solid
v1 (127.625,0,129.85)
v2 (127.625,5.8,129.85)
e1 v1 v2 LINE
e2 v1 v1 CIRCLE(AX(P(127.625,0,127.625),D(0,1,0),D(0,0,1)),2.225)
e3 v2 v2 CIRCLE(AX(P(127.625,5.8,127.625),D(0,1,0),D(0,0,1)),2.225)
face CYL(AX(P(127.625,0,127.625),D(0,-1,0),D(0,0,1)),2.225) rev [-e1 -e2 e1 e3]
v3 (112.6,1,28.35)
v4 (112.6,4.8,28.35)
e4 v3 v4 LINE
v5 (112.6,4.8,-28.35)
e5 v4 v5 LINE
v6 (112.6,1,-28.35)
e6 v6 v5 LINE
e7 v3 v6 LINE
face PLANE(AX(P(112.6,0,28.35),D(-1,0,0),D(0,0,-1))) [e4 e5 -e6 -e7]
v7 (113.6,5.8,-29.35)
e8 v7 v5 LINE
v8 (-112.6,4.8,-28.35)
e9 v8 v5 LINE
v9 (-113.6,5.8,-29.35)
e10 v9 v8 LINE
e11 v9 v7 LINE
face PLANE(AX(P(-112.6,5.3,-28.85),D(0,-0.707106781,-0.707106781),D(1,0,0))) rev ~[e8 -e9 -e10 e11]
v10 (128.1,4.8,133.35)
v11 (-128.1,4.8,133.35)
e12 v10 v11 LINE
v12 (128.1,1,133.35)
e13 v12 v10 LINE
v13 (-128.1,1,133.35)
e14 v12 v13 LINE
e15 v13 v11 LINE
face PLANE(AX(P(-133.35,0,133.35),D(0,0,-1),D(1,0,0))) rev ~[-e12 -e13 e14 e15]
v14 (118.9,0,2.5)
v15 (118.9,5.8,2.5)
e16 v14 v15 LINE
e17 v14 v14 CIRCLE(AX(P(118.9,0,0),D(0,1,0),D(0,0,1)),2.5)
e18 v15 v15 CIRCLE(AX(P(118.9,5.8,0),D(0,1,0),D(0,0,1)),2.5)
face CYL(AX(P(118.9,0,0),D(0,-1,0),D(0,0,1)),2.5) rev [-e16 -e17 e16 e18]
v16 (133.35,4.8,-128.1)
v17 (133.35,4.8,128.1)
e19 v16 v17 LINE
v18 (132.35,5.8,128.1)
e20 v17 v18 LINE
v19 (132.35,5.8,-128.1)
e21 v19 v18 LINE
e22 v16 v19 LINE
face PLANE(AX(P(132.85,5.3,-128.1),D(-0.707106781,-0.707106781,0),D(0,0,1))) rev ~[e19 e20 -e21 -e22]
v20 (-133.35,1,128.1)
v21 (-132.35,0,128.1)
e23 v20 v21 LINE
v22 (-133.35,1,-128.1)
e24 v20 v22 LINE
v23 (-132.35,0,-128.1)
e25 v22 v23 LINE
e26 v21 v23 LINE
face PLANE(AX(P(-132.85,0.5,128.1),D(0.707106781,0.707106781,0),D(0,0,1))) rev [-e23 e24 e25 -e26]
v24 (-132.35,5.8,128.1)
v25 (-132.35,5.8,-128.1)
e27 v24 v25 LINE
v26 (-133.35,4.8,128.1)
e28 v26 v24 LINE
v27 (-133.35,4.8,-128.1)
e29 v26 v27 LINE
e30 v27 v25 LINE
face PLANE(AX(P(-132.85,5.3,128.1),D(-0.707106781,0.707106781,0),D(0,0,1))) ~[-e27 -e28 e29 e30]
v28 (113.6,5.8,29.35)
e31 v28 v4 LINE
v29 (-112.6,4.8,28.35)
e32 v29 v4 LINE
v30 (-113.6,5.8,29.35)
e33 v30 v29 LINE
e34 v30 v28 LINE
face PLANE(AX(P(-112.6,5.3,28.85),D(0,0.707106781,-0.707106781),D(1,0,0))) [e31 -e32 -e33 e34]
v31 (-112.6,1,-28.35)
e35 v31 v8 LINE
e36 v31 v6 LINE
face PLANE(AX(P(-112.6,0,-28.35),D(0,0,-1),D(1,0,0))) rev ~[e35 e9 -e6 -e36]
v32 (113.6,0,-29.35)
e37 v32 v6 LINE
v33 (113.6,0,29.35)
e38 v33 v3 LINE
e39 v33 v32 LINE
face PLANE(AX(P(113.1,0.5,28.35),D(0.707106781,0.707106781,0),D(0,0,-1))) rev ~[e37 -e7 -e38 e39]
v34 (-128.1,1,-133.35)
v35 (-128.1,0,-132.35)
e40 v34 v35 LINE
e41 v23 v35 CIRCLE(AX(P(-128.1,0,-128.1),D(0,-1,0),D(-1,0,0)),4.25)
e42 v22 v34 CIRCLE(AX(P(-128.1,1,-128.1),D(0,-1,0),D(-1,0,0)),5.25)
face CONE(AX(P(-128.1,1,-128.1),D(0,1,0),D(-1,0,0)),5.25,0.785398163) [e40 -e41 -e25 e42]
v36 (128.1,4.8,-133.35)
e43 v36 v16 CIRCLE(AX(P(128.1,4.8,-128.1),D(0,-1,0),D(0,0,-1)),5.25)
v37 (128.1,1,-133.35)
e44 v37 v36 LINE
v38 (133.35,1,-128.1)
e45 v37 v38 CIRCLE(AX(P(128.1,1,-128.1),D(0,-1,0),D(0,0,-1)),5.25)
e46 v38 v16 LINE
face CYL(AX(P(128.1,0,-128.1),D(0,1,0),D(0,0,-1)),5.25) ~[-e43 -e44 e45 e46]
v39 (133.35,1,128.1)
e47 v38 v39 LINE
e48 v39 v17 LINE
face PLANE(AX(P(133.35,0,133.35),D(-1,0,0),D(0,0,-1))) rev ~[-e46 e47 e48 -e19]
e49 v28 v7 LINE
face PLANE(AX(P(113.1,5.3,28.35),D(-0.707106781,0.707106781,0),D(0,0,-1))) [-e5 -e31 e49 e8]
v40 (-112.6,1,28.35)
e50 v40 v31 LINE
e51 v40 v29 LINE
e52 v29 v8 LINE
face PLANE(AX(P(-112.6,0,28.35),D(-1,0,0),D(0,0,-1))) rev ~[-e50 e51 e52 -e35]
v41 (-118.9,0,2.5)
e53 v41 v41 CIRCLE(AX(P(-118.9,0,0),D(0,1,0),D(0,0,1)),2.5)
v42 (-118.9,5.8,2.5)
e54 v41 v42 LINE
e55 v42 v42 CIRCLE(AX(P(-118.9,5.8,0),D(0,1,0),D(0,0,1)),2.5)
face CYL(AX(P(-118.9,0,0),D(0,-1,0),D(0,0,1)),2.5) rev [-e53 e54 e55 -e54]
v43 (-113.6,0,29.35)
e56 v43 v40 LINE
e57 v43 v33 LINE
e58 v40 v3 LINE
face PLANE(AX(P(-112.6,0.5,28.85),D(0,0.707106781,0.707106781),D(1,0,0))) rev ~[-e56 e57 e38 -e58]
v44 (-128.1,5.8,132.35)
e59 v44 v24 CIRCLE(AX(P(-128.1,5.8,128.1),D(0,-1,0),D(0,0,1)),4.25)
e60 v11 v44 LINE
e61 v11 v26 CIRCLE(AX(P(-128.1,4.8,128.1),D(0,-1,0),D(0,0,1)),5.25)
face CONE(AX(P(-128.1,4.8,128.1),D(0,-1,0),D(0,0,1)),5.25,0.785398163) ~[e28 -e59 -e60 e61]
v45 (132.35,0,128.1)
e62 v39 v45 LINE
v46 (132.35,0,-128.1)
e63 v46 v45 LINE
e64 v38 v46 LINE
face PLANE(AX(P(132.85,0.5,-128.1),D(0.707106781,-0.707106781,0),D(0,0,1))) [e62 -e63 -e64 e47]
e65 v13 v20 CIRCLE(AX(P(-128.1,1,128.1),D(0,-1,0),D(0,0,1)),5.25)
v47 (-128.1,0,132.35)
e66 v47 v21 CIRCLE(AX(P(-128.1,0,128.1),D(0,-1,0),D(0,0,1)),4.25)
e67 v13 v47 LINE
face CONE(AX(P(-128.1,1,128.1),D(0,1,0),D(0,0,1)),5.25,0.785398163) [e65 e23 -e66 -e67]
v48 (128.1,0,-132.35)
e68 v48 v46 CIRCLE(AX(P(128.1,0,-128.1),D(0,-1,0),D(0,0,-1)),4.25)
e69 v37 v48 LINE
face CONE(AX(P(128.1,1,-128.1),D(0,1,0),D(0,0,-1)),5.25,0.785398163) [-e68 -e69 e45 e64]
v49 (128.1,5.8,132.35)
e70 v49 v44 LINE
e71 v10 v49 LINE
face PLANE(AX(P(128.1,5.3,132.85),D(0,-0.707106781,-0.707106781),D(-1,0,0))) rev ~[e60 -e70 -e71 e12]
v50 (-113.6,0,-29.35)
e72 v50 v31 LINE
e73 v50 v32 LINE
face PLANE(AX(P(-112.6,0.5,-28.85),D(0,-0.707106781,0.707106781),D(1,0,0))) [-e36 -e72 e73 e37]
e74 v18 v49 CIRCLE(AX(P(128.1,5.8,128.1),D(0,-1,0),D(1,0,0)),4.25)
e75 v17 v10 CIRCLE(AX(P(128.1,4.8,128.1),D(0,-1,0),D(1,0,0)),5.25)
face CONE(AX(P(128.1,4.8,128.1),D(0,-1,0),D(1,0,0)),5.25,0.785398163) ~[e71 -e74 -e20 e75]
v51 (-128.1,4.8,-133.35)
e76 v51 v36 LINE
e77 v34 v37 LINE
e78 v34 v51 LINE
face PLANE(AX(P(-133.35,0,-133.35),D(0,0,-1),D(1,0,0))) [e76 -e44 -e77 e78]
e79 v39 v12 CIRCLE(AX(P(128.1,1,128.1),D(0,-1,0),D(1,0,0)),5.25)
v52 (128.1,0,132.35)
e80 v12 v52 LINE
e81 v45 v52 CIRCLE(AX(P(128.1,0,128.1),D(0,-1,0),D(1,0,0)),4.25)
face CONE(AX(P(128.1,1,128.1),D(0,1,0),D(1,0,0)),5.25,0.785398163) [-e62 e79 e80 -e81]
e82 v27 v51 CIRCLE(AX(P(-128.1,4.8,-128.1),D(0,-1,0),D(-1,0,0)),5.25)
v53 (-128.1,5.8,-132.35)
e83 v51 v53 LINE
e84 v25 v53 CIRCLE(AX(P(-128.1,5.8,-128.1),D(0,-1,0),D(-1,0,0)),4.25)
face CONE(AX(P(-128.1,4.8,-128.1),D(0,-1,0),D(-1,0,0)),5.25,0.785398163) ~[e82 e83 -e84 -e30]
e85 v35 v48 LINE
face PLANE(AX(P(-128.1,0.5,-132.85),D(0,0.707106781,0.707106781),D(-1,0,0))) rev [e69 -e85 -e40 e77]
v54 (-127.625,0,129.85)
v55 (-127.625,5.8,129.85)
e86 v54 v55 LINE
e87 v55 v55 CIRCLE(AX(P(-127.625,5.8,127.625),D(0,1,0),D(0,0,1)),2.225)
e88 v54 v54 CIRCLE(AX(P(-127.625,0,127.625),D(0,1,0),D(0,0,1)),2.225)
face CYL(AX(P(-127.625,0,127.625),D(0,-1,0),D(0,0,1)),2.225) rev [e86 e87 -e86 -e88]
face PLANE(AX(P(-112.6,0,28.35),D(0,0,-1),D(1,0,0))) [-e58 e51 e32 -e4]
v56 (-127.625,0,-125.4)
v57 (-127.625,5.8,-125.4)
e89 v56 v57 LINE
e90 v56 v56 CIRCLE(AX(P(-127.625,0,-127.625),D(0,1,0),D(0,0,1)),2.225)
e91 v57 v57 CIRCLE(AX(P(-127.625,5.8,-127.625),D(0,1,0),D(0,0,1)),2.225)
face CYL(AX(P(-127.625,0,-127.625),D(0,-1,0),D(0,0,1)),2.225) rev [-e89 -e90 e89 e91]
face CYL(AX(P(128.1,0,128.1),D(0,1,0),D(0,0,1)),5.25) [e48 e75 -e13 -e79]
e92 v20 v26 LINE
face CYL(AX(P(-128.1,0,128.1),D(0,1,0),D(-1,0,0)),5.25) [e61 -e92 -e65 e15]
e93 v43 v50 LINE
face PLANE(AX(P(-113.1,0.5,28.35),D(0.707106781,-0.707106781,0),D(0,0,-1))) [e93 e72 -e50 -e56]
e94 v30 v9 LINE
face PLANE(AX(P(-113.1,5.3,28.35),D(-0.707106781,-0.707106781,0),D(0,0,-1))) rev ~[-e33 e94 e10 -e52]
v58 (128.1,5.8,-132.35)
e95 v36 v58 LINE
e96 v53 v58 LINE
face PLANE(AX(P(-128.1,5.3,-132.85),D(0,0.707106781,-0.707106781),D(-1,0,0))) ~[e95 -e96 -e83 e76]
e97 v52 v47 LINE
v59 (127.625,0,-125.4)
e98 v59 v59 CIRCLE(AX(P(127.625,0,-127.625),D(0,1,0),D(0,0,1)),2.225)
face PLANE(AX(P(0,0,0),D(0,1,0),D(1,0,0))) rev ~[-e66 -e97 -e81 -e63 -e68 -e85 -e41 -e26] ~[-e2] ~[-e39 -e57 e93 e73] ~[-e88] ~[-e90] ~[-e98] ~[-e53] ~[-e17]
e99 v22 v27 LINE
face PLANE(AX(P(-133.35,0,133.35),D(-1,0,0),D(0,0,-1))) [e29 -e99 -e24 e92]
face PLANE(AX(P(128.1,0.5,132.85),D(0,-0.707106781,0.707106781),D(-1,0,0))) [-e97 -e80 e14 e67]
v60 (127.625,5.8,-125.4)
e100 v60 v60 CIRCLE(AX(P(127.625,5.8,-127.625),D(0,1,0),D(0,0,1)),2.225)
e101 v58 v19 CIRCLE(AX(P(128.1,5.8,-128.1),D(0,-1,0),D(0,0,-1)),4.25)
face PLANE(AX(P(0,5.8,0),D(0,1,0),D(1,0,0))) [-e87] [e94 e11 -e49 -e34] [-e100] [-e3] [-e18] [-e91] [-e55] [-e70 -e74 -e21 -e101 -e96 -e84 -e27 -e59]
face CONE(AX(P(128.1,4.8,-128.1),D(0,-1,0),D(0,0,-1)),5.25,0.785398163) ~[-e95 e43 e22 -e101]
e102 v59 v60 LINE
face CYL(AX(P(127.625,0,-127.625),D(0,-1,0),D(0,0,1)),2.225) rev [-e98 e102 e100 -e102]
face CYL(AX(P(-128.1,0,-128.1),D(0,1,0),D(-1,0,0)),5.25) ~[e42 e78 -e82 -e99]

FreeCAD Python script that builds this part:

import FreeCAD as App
import Part
import Sketcher

V = App.Vector
Q = App.Units.Quantity


def edges_at(feature, points):
    """Names of the edges that pass closest to the given points."""
    edges = feature.Shape.Edges
    near = lambda p: min(range(len(edges)), key=lambda i: edges[i].distToShape(Part.Vertex(*p))[0])
    return sorted({f"Edge{near(p) + 1}" for p in points})

doc = App.newDocument("Part")
body = doc.addObject("PartDesign::Body", "Body")

sketch1 = body.newObject("Sketcher::SketchObject", "Sketch")
sketch1.AttachmentSupport = (doc.getObject("XZ_Plane"), [""])
sketch1.MapMode = "FlatFace"
sketch1.addGeometry([
    Part.LineSegment(V(-133.35, -133.35, 0), V(-133.35, 133.35, 0)),
    Part.LineSegment(V(-133.35, 133.35, 0), V(133.35, 133.35, 0)),
    Part.LineSegment(V(133.35, 133.35, 0), V(133.35, -133.35, 0)),
    Part.LineSegment(V(133.35, -133.35, 0), V(-133.35, -133.35, 0)),
    Part.Circle(V(-127.625, 127.625, 0), V(0, 0, 1), 2.225),
    Part.Circle(V(127.625, 127.625, 0), V(0, 0, 1), 2.225),
    Part.Circle(V(-118.9, 0, 0), V(0, 0, 1), 2.5),
    Part.Circle(V(-127.625, -127.625, 0), V(0, 0, 1), 2.225),
    Part.LineSegment(V(112.6, 28.35, 0), V(-112.6, 28.35, 0)),
    Part.LineSegment(V(-112.6, 28.35, 0), V(-112.6, -28.35, 0)),
    Part.LineSegment(V(-112.6, -28.35, 0), V(112.6, -28.35, 0)),
    Part.LineSegment(V(112.6, -28.35, 0), V(112.6, 28.35, 0)),
    Part.Circle(V(118.9, 0, 0), V(0, 0, 1), 2.5),
    Part.Circle(V(127.625, -127.625, 0), V(0, 0, 1), 2.225),
], False)
sketch1.addConstraint([
    Sketcher.Constraint("Coincident", 0, 2, 1, 1),
    Sketcher.Constraint("Coincident", 1, 2, 2, 1),
    Sketcher.Constraint("Coincident", 2, 2, 3, 1),
    Sketcher.Constraint("Coincident", 3, 2, 0, 1),
    Sketcher.Constraint("Coincident", 8, 2, 9, 1),
    Sketcher.Constraint("Coincident", 9, 2, 10, 1),
    Sketcher.Constraint("Coincident", 10, 2, 11, 1),
    Sketcher.Constraint("Coincident", 11, 2, 8, 1),
    Sketcher.Constraint("Vertical", 0),
    Sketcher.Constraint("Horizontal", 1),
    Sketcher.Constraint("Vertical", 2),
    Sketcher.Constraint("Horizontal", 3),
    Sketcher.Constraint("Horizontal", 8),
    Sketcher.Constraint("Vertical", 9),
    Sketcher.Constraint("Horizontal", 10),
    Sketcher.Constraint("Vertical", 11),
    Sketcher.Constraint("Equal", 4, 5),
    Sketcher.Constraint("Equal", 5, 7),
    Sketcher.Constraint("Equal", 6, 12),
    Sketcher.Constraint("Equal", 7, 13),
    Sketcher.Constraint("Symmetric", 5, 3, 7, 3, -1, 1),
    Sketcher.Constraint("Symmetric", 6, 3, 12, 3, -1, 1),
    Sketcher.Constraint("Symmetric", 4, 3, 13, 3, -1, 1),
    Sketcher.Constraint("Symmetric", 0, 2, 2, 2, -1, 1),
    Sketcher.Constraint("Symmetric", 8, 2, 10, 2, -1, 1),
    Sketcher.Constraint("Symmetric", 4, 3, 5, 3, -2),
    Sketcher.Constraint("PointOnObject", 6, 3, -1),
    Sketcher.Constraint("Equal", 3, 0),
    Sketcher.Constraint("Diameter", 6, Q("5 mm")),
    Sketcher.Constraint("Diameter", 4, Q("4.45 mm")),
    Sketcher.Constraint("DistanceX", 1, 1, 1, 2, Q("266.7 mm")),
    Sketcher.Constraint("DistanceX", 8, 2, 8, 1, Q("225.2 mm")),
    Sketcher.Constraint("DistanceY", 9, 2, 9, 1, Q("56.7 mm")),
    Sketcher.Constraint("DistanceX", 6, 3, -1, 1, Q("118.9 mm")),
    Sketcher.Constraint("DistanceX", 4, 3, 5, 3, Q("255.25 mm")),
    Sketcher.Constraint("DistanceY", 7, 3, 4, 3, Q("255.25 mm")),
])
pad1 = body.newObject("PartDesign::Pad", "Pad")
pad1.Profile = sketch1
pad1.Length = 5.8
pad1.Reversed = True
doc.recompute()

fillet = body.newObject("PartDesign::Fillet", "Fillet")
fillet.Base = (pad1, edges_at(pad1, [
    (133.35, 2.9, 133.35),
    (-133.35, 2.9, 133.35),
    (-133.35, 2.9, -133.35),
    (133.35, 2.9, -133.35),
]))
fillet.Radius = 5.25
doc.recompute()

chamfer = body.newObject("PartDesign::Chamfer", "Chamfer")
chamfer.Base = (fillet, edges_at(fillet, [
    (112.6, 0, 0),
    (0, 0, -28.35),
    (-112.6, 0, 0),
    (0, 0, 28.35),
    (112.6, 5.8, 0),
    (0, 5.8, -28.35),
    (-112.6, 5.8, 0),
    (0, 5.8, 28.35),
    (-133.35, 0, 0),
    (-133.35, 5.8, 0),
    (133.35, 0, 0),
    (0, 0, 133.35),
    (0, 0, -133.35),
    (-131.812, 0, 131.812),
    (131.812, 0, 131.812),
    (131.812, 0, -131.812),
    (-131.812, 0, -131.812),
    (0, 5.8, -133.35),
    (133.35, 5.8, 0),
    (0, 5.8, 133.35),
    (-131.812, 5.8, 131.812),
    (131.812, 5.8, 131.812),
    (131.812, 5.8, -131.812),
    (-131.812, 5.8, -131.812),
]))
chamfer.Size = 1

doc.recompute()
